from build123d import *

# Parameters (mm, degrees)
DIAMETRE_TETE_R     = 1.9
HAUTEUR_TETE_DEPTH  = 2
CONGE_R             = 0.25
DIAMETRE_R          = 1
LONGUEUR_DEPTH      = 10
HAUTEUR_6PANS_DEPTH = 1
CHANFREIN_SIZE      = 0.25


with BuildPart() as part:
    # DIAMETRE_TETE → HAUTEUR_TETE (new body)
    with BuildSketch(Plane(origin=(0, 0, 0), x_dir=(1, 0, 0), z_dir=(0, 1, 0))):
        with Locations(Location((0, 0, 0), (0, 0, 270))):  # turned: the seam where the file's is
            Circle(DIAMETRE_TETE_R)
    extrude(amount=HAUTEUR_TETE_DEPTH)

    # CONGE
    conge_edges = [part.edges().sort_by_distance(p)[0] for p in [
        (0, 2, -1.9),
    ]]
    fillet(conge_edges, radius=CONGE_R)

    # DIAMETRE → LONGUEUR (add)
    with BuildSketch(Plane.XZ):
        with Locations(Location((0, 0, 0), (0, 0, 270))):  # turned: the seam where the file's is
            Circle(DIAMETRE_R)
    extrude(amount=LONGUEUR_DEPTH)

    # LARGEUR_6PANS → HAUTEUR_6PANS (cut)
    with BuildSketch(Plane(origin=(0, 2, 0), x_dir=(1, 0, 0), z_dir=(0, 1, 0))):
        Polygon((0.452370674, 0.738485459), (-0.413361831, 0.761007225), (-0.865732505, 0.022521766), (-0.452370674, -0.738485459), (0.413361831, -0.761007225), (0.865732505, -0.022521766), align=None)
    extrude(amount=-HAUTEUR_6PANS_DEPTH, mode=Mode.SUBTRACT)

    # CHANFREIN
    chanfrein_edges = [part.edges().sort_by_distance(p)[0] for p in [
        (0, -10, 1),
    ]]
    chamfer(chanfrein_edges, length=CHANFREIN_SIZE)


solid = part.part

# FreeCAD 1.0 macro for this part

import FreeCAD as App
import Part
import Sketcher
from FreeCAD import Vector
Q = App.Units.Quantity


def edges_at(feature, points):
    """Names of the edges that pass closest to the given points."""
    edges = feature.Shape.Edges
    near = lambda p: min(range(len(edges)), key=lambda i: edges[i].distToShape(Part.Vertex(*p))[0])
    return sorted({f"Edge{near(p) + 1}" for p in points})

doc = App.newDocument("Part")
body = doc.addObject("PartDesign::Body", "Body")

# Sketch on XZ plane
sketch1 = doc.addObject("Sketcher::SketchObject", "Sketch")
body.addObject(sketch1)
sketch1.AttachmentSupport = (doc.XZ_Plane, [""])
sketch1.MapMode = "FlatFace"
sketch1.addGeometry(Part.Circle(Vector(0, 0, 0), Vector(0, 0, 1), 1.9), False)
sketch1.addConstraint([
    Sketcher.Constraint("Coincident", 0, 3, -1, 1),
    Sketcher.Constraint("Diameter", 0, Q("3.8 mm")),
])
pad1 = doc.addObject("PartDesign::Pad", "Pad")
body.addObject(pad1)
pad1.Profile = sketch1
pad1.Length = 2
pad1.Reversed = True
doc.recompute()

fillet = doc.addObject("PartDesign::Fillet", "Fillet")
body.addObject(fillet)
fillet.Base = (pad1, edges_at(pad1, [(0, 2, -1.9)]))
fillet.Radius = 0.25

# Sketch on XZ plane
sketch2 = doc.addObject("Sketcher::SketchObject", "Sketch001")
body.addObject(sketch2)
sketch2.AttachmentSupport = (doc.XZ_Plane, [""])
sketch2.MapMode = "FlatFace"
sketch2.addGeometry(Part.Circle(Vector(0, 0, 0), Vector(0, 0, 1), 1), False)
sketch2.addConstraint([
    Sketcher.Constraint("Coincident", 0, 3, -1, 1),
    Sketcher.Constraint("Diameter", 0, Q("2 mm")),
])
pad2 = doc.addObject("PartDesign::Pad", "Pad001")
body.addObject(pad2)
pad2.Profile = sketch2
pad2.Length = 10

# Sketch on XZ plane
sketch3 = doc.addObject("Sketcher::SketchObject", "Sketch002")
body.addObject(sketch3)
sketch3.AttachmentSupport = (doc.XZ_Plane, [""])
sketch3.MapMode = "FlatFace"
sketch3.AttachmentOffset = App.Placement(Vector(0, 0, -2), App.Rotation())
sketch3.addGeometry([
    Part.LineSegment(Vector(0.452371, -0.738485, 0), Vector(-0.413362, -0.761007, 0)),  # 0
    Part.LineSegment(Vector(-0.413362, -0.761007, 0), Vector(-0.865733, -0.022522, 0)),  # 1
    Part.LineSegment(Vector(-0.865733, -0.022522, 0), Vector(-0.452371, 0.738485, 0)),  # 2
    Part.LineSegment(Vector(-0.452371, 0.738485, 0), Vector(0.413362, 0.761007, 0)),  # 3
    Part.LineSegment(Vector(0.413362, 0.761007, 0), Vector(0.865733, 0.022522, 0)),  # 4
    Part.LineSegment(Vector(0.865733, 0.022522, 0), Vector(0.452371, -0.738485, 0)),  # 5
], False)
sketch3.addConstraint([
    Sketcher.Constraint("Coincident", 0, 2, 1, 1),
    Sketcher.Constraint("Coincident", 1, 2, 2, 1),
    Sketcher.Constraint("Coincident", 2, 2, 3, 1),
    Sketcher.Constraint("Coincident", 3, 2, 4, 1),
    Sketcher.Constraint("Coincident", 4, 2, 5, 1),
    Sketcher.Constraint("Coincident", 5, 2, 0, 1),
    Sketcher.Constraint("Symmetric", 0, 2, 3, 2, -1, 1),
    Sketcher.Constraint("Symmetric", 1, 2, 4, 2, -1, 1),
    Sketcher.Constraint("Symmetric", 2, 2, 5, 2, -1, 1),
    Sketcher.Constraint("Equal", 0, 1),
    Sketcher.Constraint("Equal", 1, 2),
    Sketcher.Constraint("DistanceX", 0, 2, -1, 1, Q("0.413362 mm")),
    Sketcher.Constraint("DistanceY", 1, 2, -1, 1, Q("0.022522 mm")),
    Sketcher.Constraint("DistanceX", 2, 2, -1, 1, Q("0.452371 mm")),
    Sketcher.Constraint("DistanceX", 1, 2, 0, 2, Q("0.452371 mm")),
])
pocket1 = doc.addObject("PartDesign::Pocket", "Pocket")
body.addObject(pocket1)
pocket1.Profile = sketch3
pocket1.Length = 1
pocket1.Reversed = True
doc.recompute()

chamfer = doc.addObject("PartDesign::Chamfer", "Chamfer")
body.addObject(chamfer)
chamfer.Base = (pocket1, edges_at(pocket1, [(0, -10, 1)]))
chamfer.Size = 0.25

doc.recompute()
